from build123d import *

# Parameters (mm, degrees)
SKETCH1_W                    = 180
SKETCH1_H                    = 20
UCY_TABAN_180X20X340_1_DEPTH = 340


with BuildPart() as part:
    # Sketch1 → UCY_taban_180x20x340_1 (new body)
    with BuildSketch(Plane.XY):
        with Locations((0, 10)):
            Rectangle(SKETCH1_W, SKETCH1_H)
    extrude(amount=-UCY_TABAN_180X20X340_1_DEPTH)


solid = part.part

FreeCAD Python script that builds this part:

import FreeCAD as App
import Part
import Sketcher
Q = App.Units.Quantity

doc = App.newDocument("Part")
body = doc.addObject("PartDesign::Body", "Body")

# Sketch on XY plane
sketch1 = body.newObject("Sketcher::SketchObject", "Sketch")
sketch1.AttachmentSupport = (doc.getObject("XY_Plane"), [""])
sketch1.MapMode = "FlatFace"
sketch1.addGeometry(Part.LineSegment(App.Vector(-90, 20, 0), App.Vector(-90, 0, 0)), False)
sketch1.addGeometry(Part.LineSegment(App.Vector(-90, 0, 0), App.Vector(90, 0, 0)), False)
sketch1.addGeometry(Part.LineSegment(App.Vector(90, 0, 0), App.Vector(90, 20, 0)), False)
sketch1.addGeometry(Part.LineSegment(App.Vector(90, 20, 0), App.Vector(-90, 20, 0)), False)
sketch1.addConstraint(Sketcher.Constraint("Coincident", 0, 2, 1, 1))
sketch1.addConstraint(Sketcher.Constraint("Coincident", 1, 2, 2, 1))
sketch1.addConstraint(Sketcher.Constraint("Coincident", 2, 2, 3, 1))
sketch1.addConstraint(Sketcher.Constraint("Coincident", 3, 2, 0, 1))
sketch1.addConstraint(Sketcher.Constraint("Vertical", 0))
sketch1.addConstraint(Sketcher.Constraint("Horizontal", 1))
sketch1.addConstraint(Sketcher.Constraint("Vertical", 2))
sketch1.addConstraint(Sketcher.Constraint("Horizontal", 3))
sketch1.addConstraint(Sketcher.Constraint("Symmetric", 0, 2, 1, 2, -1, 1))
sketch1.addConstraint(Sketcher.Constraint("DistanceX", 1, 1, 1, 2, Q("180 mm")))
sketch1.addConstraint(Sketcher.Constraint("DistanceY", 0, 2, 0, 1, Q("20 mm")))
pad1 = body.newObject("PartDesign::Pad", "Pad")
pad1.Profile = sketch1
pad1.Length = 340
pad1.Reversed = True

doc.recompute()
